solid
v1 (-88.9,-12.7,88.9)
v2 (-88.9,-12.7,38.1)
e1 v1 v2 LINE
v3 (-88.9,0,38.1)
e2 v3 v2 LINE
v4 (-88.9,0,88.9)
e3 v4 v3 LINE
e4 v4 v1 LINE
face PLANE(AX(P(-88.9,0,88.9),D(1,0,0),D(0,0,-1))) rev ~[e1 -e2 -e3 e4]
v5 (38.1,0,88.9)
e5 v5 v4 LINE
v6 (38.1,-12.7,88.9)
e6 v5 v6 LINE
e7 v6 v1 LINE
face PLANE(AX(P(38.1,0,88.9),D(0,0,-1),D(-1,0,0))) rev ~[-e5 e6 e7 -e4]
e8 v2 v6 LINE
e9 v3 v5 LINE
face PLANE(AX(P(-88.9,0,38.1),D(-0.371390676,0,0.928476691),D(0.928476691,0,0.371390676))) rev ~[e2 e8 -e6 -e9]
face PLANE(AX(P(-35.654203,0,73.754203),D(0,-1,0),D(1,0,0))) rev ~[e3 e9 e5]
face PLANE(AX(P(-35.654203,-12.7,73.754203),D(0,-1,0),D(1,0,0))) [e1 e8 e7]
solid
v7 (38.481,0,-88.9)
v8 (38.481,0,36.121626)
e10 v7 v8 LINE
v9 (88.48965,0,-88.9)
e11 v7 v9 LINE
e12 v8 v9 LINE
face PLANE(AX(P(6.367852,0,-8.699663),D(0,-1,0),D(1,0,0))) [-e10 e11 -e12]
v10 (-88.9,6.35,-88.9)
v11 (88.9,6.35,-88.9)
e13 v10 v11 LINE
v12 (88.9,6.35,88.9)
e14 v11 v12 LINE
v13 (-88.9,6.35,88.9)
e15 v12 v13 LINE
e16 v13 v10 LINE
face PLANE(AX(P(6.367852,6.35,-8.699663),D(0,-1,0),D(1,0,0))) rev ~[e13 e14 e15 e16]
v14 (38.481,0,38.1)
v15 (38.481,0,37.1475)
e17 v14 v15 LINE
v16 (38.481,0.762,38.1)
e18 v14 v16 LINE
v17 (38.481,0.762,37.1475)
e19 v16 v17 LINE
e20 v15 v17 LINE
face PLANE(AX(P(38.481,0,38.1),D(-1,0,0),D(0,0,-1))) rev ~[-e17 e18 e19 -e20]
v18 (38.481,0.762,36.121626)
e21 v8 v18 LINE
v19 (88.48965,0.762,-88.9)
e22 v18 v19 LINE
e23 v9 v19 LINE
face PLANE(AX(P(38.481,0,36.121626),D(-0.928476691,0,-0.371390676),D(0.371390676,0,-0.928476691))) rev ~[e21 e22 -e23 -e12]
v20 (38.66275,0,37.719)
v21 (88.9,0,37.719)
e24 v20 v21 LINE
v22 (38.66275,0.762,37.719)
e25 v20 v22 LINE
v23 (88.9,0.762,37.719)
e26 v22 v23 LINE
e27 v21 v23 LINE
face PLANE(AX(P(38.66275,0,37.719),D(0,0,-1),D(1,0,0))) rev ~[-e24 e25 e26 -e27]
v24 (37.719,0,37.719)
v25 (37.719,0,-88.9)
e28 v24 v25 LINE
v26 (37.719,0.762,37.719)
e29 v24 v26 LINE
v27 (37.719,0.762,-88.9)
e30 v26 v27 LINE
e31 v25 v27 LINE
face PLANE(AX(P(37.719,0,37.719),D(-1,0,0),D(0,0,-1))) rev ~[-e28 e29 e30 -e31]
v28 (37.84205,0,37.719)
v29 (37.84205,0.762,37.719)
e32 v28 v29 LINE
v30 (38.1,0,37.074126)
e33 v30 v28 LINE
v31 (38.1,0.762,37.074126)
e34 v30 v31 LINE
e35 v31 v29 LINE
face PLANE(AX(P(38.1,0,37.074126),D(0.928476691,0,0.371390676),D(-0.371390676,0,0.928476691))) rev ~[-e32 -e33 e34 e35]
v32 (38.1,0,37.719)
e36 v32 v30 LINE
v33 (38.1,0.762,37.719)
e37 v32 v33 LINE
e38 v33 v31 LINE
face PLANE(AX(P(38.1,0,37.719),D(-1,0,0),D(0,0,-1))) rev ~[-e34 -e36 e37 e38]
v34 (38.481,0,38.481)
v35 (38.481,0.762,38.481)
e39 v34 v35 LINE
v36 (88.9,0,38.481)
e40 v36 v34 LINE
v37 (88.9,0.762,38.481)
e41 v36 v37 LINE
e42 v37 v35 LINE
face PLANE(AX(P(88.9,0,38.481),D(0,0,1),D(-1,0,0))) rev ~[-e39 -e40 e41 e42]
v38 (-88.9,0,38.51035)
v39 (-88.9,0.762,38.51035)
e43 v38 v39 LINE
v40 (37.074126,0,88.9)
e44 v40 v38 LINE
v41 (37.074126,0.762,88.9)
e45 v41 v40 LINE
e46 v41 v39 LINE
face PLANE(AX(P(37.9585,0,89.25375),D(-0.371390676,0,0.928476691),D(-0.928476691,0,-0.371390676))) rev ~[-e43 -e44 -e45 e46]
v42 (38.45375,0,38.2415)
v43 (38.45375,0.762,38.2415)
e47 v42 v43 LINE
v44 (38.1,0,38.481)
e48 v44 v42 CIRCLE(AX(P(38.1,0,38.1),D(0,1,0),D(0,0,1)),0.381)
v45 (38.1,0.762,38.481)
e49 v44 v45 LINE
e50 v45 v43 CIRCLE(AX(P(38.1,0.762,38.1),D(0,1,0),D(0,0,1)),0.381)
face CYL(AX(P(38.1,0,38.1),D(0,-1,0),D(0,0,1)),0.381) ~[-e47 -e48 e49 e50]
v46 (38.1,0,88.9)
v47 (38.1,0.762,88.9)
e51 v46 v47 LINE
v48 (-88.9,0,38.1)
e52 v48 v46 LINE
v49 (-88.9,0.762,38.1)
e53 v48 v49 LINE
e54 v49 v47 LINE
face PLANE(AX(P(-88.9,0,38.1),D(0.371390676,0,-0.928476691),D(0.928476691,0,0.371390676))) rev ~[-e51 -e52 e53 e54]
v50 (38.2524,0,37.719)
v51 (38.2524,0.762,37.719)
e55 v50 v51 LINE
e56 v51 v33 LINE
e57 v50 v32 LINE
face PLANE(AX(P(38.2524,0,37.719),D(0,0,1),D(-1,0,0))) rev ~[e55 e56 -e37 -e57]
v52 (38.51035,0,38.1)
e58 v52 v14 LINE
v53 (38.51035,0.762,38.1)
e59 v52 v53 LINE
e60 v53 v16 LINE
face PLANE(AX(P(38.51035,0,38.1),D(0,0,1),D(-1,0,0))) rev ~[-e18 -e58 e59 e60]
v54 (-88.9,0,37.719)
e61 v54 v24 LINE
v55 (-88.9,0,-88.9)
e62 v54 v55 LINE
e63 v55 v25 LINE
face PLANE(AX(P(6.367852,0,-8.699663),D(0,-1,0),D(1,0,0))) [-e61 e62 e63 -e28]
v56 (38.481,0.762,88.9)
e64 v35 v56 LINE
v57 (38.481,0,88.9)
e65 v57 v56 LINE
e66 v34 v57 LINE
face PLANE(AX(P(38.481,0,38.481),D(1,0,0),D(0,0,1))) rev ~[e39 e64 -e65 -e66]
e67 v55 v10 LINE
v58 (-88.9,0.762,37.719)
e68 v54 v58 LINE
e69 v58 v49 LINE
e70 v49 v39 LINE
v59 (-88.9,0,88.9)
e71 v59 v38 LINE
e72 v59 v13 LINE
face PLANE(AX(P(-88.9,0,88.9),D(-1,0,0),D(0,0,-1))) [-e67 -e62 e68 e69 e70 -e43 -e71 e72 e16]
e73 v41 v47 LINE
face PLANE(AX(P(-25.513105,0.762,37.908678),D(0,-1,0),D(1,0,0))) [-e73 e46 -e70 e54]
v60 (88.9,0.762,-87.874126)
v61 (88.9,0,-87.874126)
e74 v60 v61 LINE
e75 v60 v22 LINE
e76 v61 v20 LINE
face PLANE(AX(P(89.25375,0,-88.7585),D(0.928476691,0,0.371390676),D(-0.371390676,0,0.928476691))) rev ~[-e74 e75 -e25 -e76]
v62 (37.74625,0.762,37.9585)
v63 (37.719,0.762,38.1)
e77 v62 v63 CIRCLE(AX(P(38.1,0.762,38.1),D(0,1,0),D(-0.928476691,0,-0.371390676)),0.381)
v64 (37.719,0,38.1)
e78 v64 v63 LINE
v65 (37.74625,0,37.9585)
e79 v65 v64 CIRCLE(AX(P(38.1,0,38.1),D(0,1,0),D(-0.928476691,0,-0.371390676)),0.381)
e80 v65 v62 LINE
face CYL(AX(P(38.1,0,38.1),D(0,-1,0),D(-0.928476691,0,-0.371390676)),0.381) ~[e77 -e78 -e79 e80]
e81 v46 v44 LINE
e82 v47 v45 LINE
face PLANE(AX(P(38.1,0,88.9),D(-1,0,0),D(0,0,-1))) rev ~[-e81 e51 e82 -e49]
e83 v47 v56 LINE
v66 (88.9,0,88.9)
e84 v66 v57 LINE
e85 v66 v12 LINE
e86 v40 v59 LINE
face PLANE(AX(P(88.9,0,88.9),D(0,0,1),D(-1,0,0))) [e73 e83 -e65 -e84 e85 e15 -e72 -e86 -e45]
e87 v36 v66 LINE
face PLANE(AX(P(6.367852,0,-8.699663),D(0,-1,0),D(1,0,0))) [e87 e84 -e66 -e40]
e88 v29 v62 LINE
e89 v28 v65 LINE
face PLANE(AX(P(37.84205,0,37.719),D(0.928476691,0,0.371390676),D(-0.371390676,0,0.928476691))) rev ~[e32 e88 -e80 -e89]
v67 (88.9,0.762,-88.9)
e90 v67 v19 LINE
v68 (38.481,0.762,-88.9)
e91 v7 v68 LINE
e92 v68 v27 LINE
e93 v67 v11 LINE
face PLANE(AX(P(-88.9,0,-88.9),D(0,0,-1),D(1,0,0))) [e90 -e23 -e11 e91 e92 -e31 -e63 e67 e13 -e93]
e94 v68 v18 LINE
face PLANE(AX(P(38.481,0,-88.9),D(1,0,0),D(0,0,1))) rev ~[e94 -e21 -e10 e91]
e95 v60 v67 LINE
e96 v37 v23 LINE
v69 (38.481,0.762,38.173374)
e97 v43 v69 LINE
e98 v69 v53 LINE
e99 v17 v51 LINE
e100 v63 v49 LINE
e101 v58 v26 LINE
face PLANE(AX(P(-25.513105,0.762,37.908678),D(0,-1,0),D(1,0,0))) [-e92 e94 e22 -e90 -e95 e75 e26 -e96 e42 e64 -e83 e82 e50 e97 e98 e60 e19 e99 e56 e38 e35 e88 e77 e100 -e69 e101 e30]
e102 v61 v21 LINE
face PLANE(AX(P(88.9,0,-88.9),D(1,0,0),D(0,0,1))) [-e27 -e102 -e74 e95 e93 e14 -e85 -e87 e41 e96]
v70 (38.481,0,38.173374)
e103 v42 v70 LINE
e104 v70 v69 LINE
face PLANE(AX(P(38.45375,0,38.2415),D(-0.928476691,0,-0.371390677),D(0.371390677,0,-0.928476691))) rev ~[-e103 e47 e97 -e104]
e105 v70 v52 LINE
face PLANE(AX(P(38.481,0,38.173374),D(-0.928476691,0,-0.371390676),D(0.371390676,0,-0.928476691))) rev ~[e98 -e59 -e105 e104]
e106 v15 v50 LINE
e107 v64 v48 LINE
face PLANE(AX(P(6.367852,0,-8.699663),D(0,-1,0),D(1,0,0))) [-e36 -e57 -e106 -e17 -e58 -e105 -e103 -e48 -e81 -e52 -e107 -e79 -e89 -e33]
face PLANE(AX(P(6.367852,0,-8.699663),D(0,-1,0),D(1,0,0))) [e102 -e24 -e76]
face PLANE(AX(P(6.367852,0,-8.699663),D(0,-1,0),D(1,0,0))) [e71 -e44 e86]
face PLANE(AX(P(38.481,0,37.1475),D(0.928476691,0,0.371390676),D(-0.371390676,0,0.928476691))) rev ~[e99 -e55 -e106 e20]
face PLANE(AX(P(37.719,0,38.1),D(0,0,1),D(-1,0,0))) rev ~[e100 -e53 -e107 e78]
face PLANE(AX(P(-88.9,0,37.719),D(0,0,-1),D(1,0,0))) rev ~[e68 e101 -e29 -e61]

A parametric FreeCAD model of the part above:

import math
import FreeCAD as App
import Part
import Sketcher
from FreeCAD import Vector
Q = App.Units.Quantity

doc = App.newDocument("Part")
body = doc.addObject("PartDesign::Body", "Body")

sketch1 = body.newObject("Sketcher::SketchObject", "Sketch")
sketch1.AttachmentSupport = (doc.getObject("XZ_Plane"), [""])
sketch1.MapMode = "FlatFace"
sketch1.addGeometry([
    Part.LineSegment(Vector(89, -89, 0), Vector(89, 89, 0)),
    Part.LineSegment(Vector(89, 89, 0), Vector(-89, 89, 0)),
    Part.LineSegment(Vector(-89, 89, 0), Vector(-89, -89, 0)),
    Part.LineSegment(Vector(-89, -89, 0), Vector(89, -89, 0)),
], False)
sketch1.addConstraint([
    Sketcher.Constraint("Coincident", 0, 2, 1, 1),
    Sketcher.Constraint("Coincident", 1, 2, 2, 1),
    Sketcher.Constraint("Coincident", 2, 2, 3, 1),
    Sketcher.Constraint("Coincident", 3, 2, 0, 1),
    Sketcher.Constraint("Vertical", 0),
    Sketcher.Constraint("Horizontal", 1),
    Sketcher.Constraint("Vertical", 2),
    Sketcher.Constraint("Horizontal", 3),
    Sketcher.Constraint("Symmetric", 0, 2, 2, 2, -1, 1),
    Sketcher.Constraint("Equal", 3, 0),
    Sketcher.Constraint("DistanceX", 1, 2, 1, 1, Q("7 in")),
])
pad1 = body.newObject("PartDesign::Pad", "Pad")
pad1.Profile = sketch1
pad1.Length = Q("0.25 in")
pad1.Reversed = True

sketch2 = body.newObject("Sketcher::SketchObject", "Sketch001")
sketch2.AttachmentSupport = (doc.getObject("XZ_Plane"), [""])
sketch2.MapMode = "FlatFace"
sketch2.addGeometry([
    Part.ArcOfCircle(Part.Circle(Vector(-88.9, 38.1, 0), Vector(0, 0, 1), 0.381), math.radians(112), math.radians(270)),
    Part.LineSegment(Vector(-88.9, 37.719, 0), Vector(37.719, 37.719, 0)),
    Part.LineSegment(Vector(37.719, 37.719, 0), Vector(37.719, -88.9, 0)),
    Part.ArcOfCircle(Part.Circle(Vector(38.1, -88.9, 0), Vector(0, 0, 1), 0.381), math.radians(180), math.radians(360)),
    Part.LineSegment(Vector(38.481, -88.9, 0), Vector(38.481, 36.122, 0)),
    Part.LineSegment(Vector(38.481, 36.122, 0), Vector(88.546, -89.041, 0)),
    Part.ArcOfCircle(Part.Circle(Vector(88.9, -88.9, 0), Vector(0, 0, 1), 0.381), math.radians(-158), math.radians(22)),
    Part.LineSegment(Vector(89.254, -88.759, 0), Vector(38.663, 37.719, 0)),
    Part.LineSegment(Vector(38.663, 37.719, 0), Vector(88.9, 37.719, 0)),
    Part.ArcOfCircle(Part.Circle(Vector(88.9, 38.1, 0), Vector(0, 0, 1), 0.381), math.radians(-90), math.radians(90)),
    Part.LineSegment(Vector(88.9, 38.481, 0), Vector(38.481, 38.481, 0)),
    Part.LineSegment(Vector(38.481, 38.481, 0), Vector(38.481, 88.9, 0)),
    Part.ArcOfCircle(Part.Circle(Vector(38.1, 88.9, 0), Vector(0, 0, 1), 0.381), math.radians(0), math.radians(112)),
    Part.LineSegment(Vector(37.959, 89.254, 0), Vector(-89.041, 38.454, 0)),
    Part.LineSegment(Vector(37.719, 38.1, 0), Vector(-88.9, 38.1, 0)),
    Part.LineSegment(Vector(-88.9, 38.1, 0), Vector(38.1, 88.9, 0)),
    Part.LineSegment(Vector(38.1, 88.9, 0), Vector(38.1, 38.481, 0)),
    Part.ArcOfCircle(Part.Circle(Vector(38.1, 38.1, 0), Vector(0, 0, 1), 0.381), math.radians(22), math.radians(90)),
    Part.LineSegment(Vector(38.454, 38.241, 0), Vector(38.481, 38.173, 0)),
    Part.LineSegment(Vector(38.481, 38.173, 0), Vector(38.51, 38.1, 0)),
    Part.LineSegment(Vector(38.51, 38.1, 0), Vector(38.481, 38.1, 0)),
    Part.LineSegment(Vector(38.481, 38.1, 0), Vector(38.481, 37.148, 0)),
    Part.LineSegment(Vector(38.481, 37.148, 0), Vector(38.252, 37.719, 0)),
    Part.LineSegment(Vector(38.252, 37.719, 0), Vector(38.1, 37.719, 0)),
    Part.LineSegment(Vector(38.1, 37.719, 0), Vector(38.1, 37.074, 0)),
    Part.LineSegment(Vector(38.1, 37.074, 0), Vector(37.842, 37.719, 0)),
    Part.LineSegment(Vector(37.842, 37.719, 0), Vector(37.746, 37.959, 0)),
    Part.ArcOfCircle(Part.Circle(Vector(38.1, 38.1, 0), Vector(0, 0, 1), 0.381), math.radians(180), math.radians(202)),
], False)
sketch2.addConstraint([
    Sketcher.Constraint("Tangent", 0, 2, 1, 1),
    Sketcher.Constraint("Coincident", 1, 2, 2, 1),
    Sketcher.Constraint("Tangent", 2, 2, 3, 1),
    Sketcher.Constraint("Tangent", 3, 2, 4, 1),
    Sketcher.Constraint("Coincident", 4, 2, 5, 1),
    Sketcher.Constraint("Tangent", 5, 2, 6, 1),
    Sketcher.Constraint("Tangent", 6, 2, 7, 1),
    Sketcher.Constraint("Coincident", 7, 2, 8, 1),
    Sketcher.Constraint("Tangent", 8, 2, 9, 1),
    Sketcher.Constraint("Tangent", 9, 2, 10, 1),
    Sketcher.Constraint("Coincident", 10, 2, 11, 1),
    Sketcher.Constraint("Tangent", 11, 2, 12, 1),
    Sketcher.Constraint("Tangent", 12, 2, 13, 1),
    Sketcher.Constraint("Tangent", 13, 2, 0, 1),
    Sketcher.Constraint("Coincident", 14, 2, 15, 1),
    Sketcher.Constraint("Coincident", 15, 2, 16, 1),
    Sketcher.Constraint("Coincident", 16, 2, 17, 2),
    Sketcher.Constraint("Tangent", 17, 1, 18, 1),
    Sketcher.Constraint("Coincident", 18, 2, 19, 1),
    Sketcher.Constraint("Coincident", 19, 2, 20, 1),
    Sketcher.Constraint("Coincident", 20, 2, 21, 1),
    Sketcher.Constraint("Coincident", 21, 2, 22, 1),
    Sketcher.Constraint("Coincident", 22, 2, 23, 1),
    Sketcher.Constraint("Coincident", 23, 2, 24, 1),
    Sketcher.Constraint("Coincident", 24, 2, 25, 1),
    Sketcher.Constraint("Coincident", 25, 2, 26, 1),
    Sketcher.Constraint("Tangent", 26, 2, 27, 2),
    Sketcher.Constraint("Coincident", 27, 1, 14, 1),
    Sketcher.Constraint("Horizontal", 1),
    Sketcher.Constraint("Vertical", 2),
    Sketcher.Constraint("Vertical", 4),
    Sketcher.Constraint("Horizontal", 8),
    Sketcher.Constraint("Horizontal", 10),
    Sketcher.Constraint("Vertical", 11),
    Sketcher.Constraint("Horizontal", 14),
    Sketcher.Constraint("Vertical", 16),
    Sketcher.Constraint("Horizontal", 20),
    Sketcher.Constraint("Vertical", 21),
    Sketcher.Constraint("Horizontal", 23),
    Sketcher.Constraint("Vertical", 24),
    Sketcher.Constraint("Coincident", 27, 3, 17, 3),
    Sketcher.Constraint("Coincident", 14, 2, 0, 3),
    Sketcher.Constraint("Coincident", 15, 2, 12, 3),
    Sketcher.Constraint("Equal", 0, 3),
    Sketcher.Constraint("Equal", 3, 6),
    Sketcher.Constraint("Equal", 6, 9),
    Sketcher.Constraint("Equal", 9, 12),
    Sketcher.Constraint("Equal", 12, 17),
    Sketcher.Constraint("Equal", 17, 27),
    Sketcher.Constraint("Symmetric", 0, 3, 9, 3, -2),
    Sketcher.Constraint("Symmetric", 3, 3, 12, 3, -1),
    Sketcher.Constraint("Parallel", 5, 7),
    Sketcher.Constraint("Perpendicular", 7, 13),
    Sketcher.Constraint("Perpendicular", 15, 18),
    Sketcher.Constraint("Parallel", 18, 19),
    Sketcher.Constraint("Parallel", 19, 22),
    Sketcher.Constraint("Parallel", 22, 25),
    Sketcher.Constraint("Parallel", 25, 26),
    Sketcher.Constraint("Horizontal", 3, 3, 6, 3),
    Sketcher.Constraint("Horizontal", 9, 3, 17, 3),
    Sketcher.Constraint("Horizontal", 14, 2, 19, 2),
    Sketcher.Constraint("Horizontal", 8, 2, 22, 2),
    Sketcher.Constraint("Horizontal", 23, 2, 25, 2),
    Sketcher.Constraint("Vertical", 6, 3, 9, 3),
    Sketcher.Constraint("Vertical", 12, 3, 17, 3),
    Sketcher.Constraint("Vertical", 11, 2, 18, 2),
    Sketcher.Constraint("Vertical", 18, 2, 20, 2),
    Sketcher.Constraint("Vertical", 16, 2, 23, 2),
    Sketcher.Constraint("Equal", 14, 2),
    Sketcher.Constraint("Equal", 10, 11),
    Sketcher.Constraint("Radius", 0, Q("0.015 in")),
    Sketcher.Constraint("DistanceX", 0, 3, 3, 3, Q("5 in")),
    Sketcher.Constraint("DistanceX", 3, 3, 6, 3, Q("2 in")),
    Sketcher.Constraint("DistanceX", 23, 2, 23, 1, Q("0.006 in")),
])
pocket1 = body.newObject("PartDesign::Pocket", "Pocket")
pocket1.Profile = sketch2
pocket1.Length = Q("0.03 in")
body2 = doc.addObject("PartDesign::Body", "Body001")

sketch3 = body2.newObject("Sketcher::SketchObject", "Sketch002")
sketch3.AttachmentSupport = (doc.getObject("XZ_Plane001"), [""])
sketch3.MapMode = "FlatFace"
sketch3.addGeometry([
    Part.LineSegment(Vector(-89, 38, 0), Vector(38, 89, 0)),
    Part.LineSegment(Vector(38, 89, 0), Vector(-89, 89, 0)),
    Part.LineSegment(Vector(-89, 89, 0), Vector(-89, 38, 0)),
], False)
sketch3.addConstraint([
    Sketcher.Constraint("Coincident", 0, 2, 1, 1),
    Sketcher.Constraint("Coincident", 1, 2, 2, 1),
    Sketcher.Constraint("Coincident", 2, 2, 0, 1),
    Sketcher.Constraint("Horizontal", 1),
    Sketcher.Constraint("Vertical", 2),
    Sketcher.Constraint("DistanceX", 1, 2, 1, 1, Q("5 in")),
    Sketcher.Constraint("DistanceY", 2, 2, 2, 1, Q("2 in")),
    Sketcher.Constraint("DistanceX", -1, 1, 0, 2, Q("1.5 in")),
    Sketcher.Constraint("DistanceY", -1, 1, 0, 2, Q("3.5 in")),
])
pad2 = body2.newObject("PartDesign::Pad", "Pad001")
pad2.Profile = sketch3
pad2.Length = Q("0.5 in")

doc.recompute()
